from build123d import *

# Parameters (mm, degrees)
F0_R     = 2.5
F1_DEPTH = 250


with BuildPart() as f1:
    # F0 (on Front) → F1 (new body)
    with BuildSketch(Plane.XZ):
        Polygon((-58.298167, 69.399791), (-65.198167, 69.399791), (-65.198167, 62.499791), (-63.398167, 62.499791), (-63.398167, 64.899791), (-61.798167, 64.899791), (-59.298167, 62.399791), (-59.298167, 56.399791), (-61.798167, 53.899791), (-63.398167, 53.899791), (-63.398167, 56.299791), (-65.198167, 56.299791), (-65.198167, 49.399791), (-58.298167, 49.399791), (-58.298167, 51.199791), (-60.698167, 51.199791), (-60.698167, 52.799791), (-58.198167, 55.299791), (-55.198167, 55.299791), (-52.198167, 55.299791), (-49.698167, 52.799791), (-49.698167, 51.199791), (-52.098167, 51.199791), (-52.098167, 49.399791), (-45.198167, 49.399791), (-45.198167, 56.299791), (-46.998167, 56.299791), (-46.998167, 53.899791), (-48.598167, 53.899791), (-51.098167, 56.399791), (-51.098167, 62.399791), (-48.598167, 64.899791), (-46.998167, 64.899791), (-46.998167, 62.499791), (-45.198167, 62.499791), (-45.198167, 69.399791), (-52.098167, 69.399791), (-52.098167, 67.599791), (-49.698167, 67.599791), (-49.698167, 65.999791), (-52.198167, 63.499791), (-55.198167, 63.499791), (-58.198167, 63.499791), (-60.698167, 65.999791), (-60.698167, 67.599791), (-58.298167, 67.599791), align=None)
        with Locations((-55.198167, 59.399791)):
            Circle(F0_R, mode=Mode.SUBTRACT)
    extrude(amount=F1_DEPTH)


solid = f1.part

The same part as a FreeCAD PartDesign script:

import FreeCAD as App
import Part
import Sketcher

V = App.Vector
Q = App.Units.Quantity

doc = App.newDocument("Part")
body = doc.addObject("PartDesign::Body", "Body")

sketch1 = body.newObject("Sketcher::SketchObject", "Sketch")
sketch1.AttachmentSupport = (doc.getObject("XZ_Plane"), [""])
sketch1.MapMode = "FlatFace"
sketch1.addGeometry([
    Part.LineSegment(V(-58.298167, 69.399791, 0), V(-65.198167, 69.399791, 0)),
    Part.LineSegment(V(-65.198167, 69.399791, 0), V(-65.198167, 62.499791, 0)),
    Part.LineSegment(V(-65.198167, 62.499791, 0), V(-63.398167, 62.499791, 0)),
    Part.LineSegment(V(-63.398167, 62.499791, 0), V(-63.398167, 64.899791, 0)),
    Part.LineSegment(V(-63.398167, 64.899791, 0), V(-61.798167, 64.899791, 0)),
    Part.LineSegment(V(-61.798167, 64.899791, 0), V(-59.298167, 62.399791, 0)),
    Part.LineSegment(V(-59.298167, 62.399791, 0), V(-59.298167, 56.399791, 0)),
    Part.LineSegment(V(-59.298167, 56.399791, 0), V(-61.798167, 53.899791, 0)),
    Part.LineSegment(V(-61.798167, 53.899791, 0), V(-63.398167, 53.899791, 0)),
    Part.LineSegment(V(-63.398167, 53.899791, 0), V(-63.398167, 56.299791, 0)),
    Part.LineSegment(V(-63.398167, 56.299791, 0), V(-65.198167, 56.299791, 0)),
    Part.LineSegment(V(-65.198167, 56.299791, 0), V(-65.198167, 49.399791, 0)),
    Part.LineSegment(V(-65.198167, 49.399791, 0), V(-58.298167, 49.399791, 0)),
    Part.LineSegment(V(-58.298167, 49.399791, 0), V(-58.298167, 51.199791, 0)),
    Part.LineSegment(V(-58.298167, 51.199791, 0), V(-60.698167, 51.199791, 0)),
    Part.LineSegment(V(-60.698167, 51.199791, 0), V(-60.698167, 52.799791, 0)),
    Part.LineSegment(V(-60.698167, 52.799791, 0), V(-58.198167, 55.299791, 0)),
    Part.LineSegment(V(-58.198167, 55.299791, 0), V(-52.198167, 55.299791, 0)),
    Part.LineSegment(V(-52.198167, 55.299791, 0), V(-49.698167, 52.799791, 0)),
    Part.LineSegment(V(-49.698167, 52.799791, 0), V(-49.698167, 51.199791, 0)),
    Part.LineSegment(V(-49.698167, 51.199791, 0), V(-52.098167, 51.199791, 0)),
    Part.LineSegment(V(-52.098167, 51.199791, 0), V(-52.098167, 49.399791, 0)),
    Part.LineSegment(V(-52.098167, 49.399791, 0), V(-45.198167, 49.399791, 0)),
    Part.LineSegment(V(-45.198167, 49.399791, 0), V(-45.198167, 56.299791, 0)),
    Part.LineSegment(V(-45.198167, 56.299791, 0), V(-46.998167, 56.299791, 0)),
    Part.LineSegment(V(-46.998167, 56.299791, 0), V(-46.998167, 53.899791, 0)),
    Part.LineSegment(V(-46.998167, 53.899791, 0), V(-48.598167, 53.899791, 0)),
    Part.LineSegment(V(-48.598167, 53.899791, 0), V(-51.098167, 56.399791, 0)),
    Part.LineSegment(V(-51.098167, 56.399791, 0), V(-51.098167, 62.399791, 0)),
    Part.LineSegment(V(-51.098167, 62.399791, 0), V(-48.598167, 64.899791, 0)),
    Part.LineSegment(V(-48.598167, 64.899791, 0), V(-46.998167, 64.899791, 0)),
    Part.LineSegment(V(-46.998167, 64.899791, 0), V(-46.998167, 62.499791, 0)),
    Part.LineSegment(V(-46.998167, 62.499791, 0), V(-45.198167, 62.499791, 0)),
    Part.LineSegment(V(-45.198167, 62.499791, 0), V(-45.198167, 69.399791, 0)),
    Part.LineSegment(V(-45.198167, 69.399791, 0), V(-52.098167, 69.399791, 0)),
    Part.LineSegment(V(-52.098167, 69.399791, 0), V(-52.098167, 67.599791, 0)),
    Part.LineSegment(V(-52.098167, 67.599791, 0), V(-49.698167, 67.599791, 0)),
    Part.LineSegment(V(-49.698167, 67.599791, 0), V(-49.698167, 65.999791, 0)),
    Part.LineSegment(V(-49.698167, 65.999791, 0), V(-52.198167, 63.499791, 0)),
    Part.LineSegment(V(-52.198167, 63.499791, 0), V(-58.198167, 63.499791, 0)),
    Part.LineSegment(V(-58.198167, 63.499791, 0), V(-60.698167, 65.999791, 0)),
    Part.LineSegment(V(-60.698167, 65.999791, 0), V(-60.698167, 67.599791, 0)),
    Part.LineSegment(V(-60.698167, 67.599791, 0), V(-58.298167, 67.599791, 0)),
    Part.LineSegment(V(-58.298167, 67.599791, 0), V(-58.298167, 69.399791, 0)),
    Part.Circle(V(-55.198167, 59.399791, 0), V(0, 0, 1), 2.5),
], False)
sketch1.addConstraint([
    Sketcher.Constraint("Coincident", 0, 2, 1, 1),
    Sketcher.Constraint("Coincident", 1, 2, 2, 1),
    Sketcher.Constraint("Coincident", 2, 2, 3, 1),
    Sketcher.Constraint("Coincident", 3, 2, 4, 1),
    Sketcher.Constraint("Coincident", 4, 2, 5, 1),
    Sketcher.Constraint("Coincident", 5, 2, 6, 1),
    Sketcher.Constraint("Coincident", 6, 2, 7, 1),
    Sketcher.Constraint("Coincident", 7, 2, 8, 1),
    Sketcher.Constraint("Coincident", 8, 2, 9, 1),
    Sketcher.Constraint("Coincident", 9, 2, 10, 1),
    Sketcher.Constraint("Coincident", 10, 2, 11, 1),
    Sketcher.Constraint("Coincident", 11, 2, 12, 1),
    Sketcher.Constraint("Coincident", 12, 2, 13, 1),
    Sketcher.Constraint("Coincident", 13, 2, 14, 1),
    Sketcher.Constraint("Coincident", 14, 2, 15, 1),
    Sketcher.Constraint("Coincident", 15, 2, 16, 1),
    Sketcher.Constraint("Coincident", 16, 2, 17, 1),
    Sketcher.Constraint("Coincident", 17, 2, 18, 1),
    Sketcher.Constraint("Coincident", 18, 2, 19, 1),
    Sketcher.Constraint("Coincident", 19, 2, 20, 1),
    Sketcher.Constraint("Coincident", 20, 2, 21, 1),
    Sketcher.Constraint("Coincident", 21, 2, 22, 1),
    Sketcher.Constraint("Coincident", 22, 2, 23, 1),
    Sketcher.Constraint("Coincident", 23, 2, 24, 1),
    Sketcher.Constraint("Coincident", 24, 2, 25, 1),
    Sketcher.Constraint("Coincident", 25, 2, 26, 1),
    Sketcher.Constraint("Coincident", 26, 2, 27, 1),
    Sketcher.Constraint("Coincident", 27, 2, 28, 1),
    Sketcher.Constraint("Coincident", 28, 2, 29, 1),
    Sketcher.Constraint("Coincident", 29, 2, 30, 1),
    Sketcher.Constraint("Coincident", 30, 2, 31, 1),
    Sketcher.Constraint("Coincident", 31, 2, 32, 1),
    Sketcher.Constraint("Coincident", 32, 2, 33, 1),
    Sketcher.Constraint("Coincident", 33, 2, 34, 1),
    Sketcher.Constraint("Coincident", 34, 2, 35, 1),
    Sketcher.Constraint("Coincident", 35, 2, 36, 1),
    Sketcher.Constraint("Coincident", 36, 2, 37, 1),
    Sketcher.Constraint("Coincident", 37, 2, 38, 1),
    Sketcher.Constraint("Coincident", 38, 2, 39, 1),
    Sketcher.Constraint("Coincident", 39, 2, 40, 1),
    Sketcher.Constraint("Coincident", 40, 2, 41, 1),
    Sketcher.Constraint("Coincident", 41, 2, 42, 1),
    Sketcher.Constraint("Coincident", 42, 2, 43, 1),
    Sketcher.Constraint("Coincident", 43, 2, 0, 1),
    Sketcher.Constraint("Horizontal", 0),
    Sketcher.Constraint("Vertical", 1),
    Sketcher.Constraint("Horizontal", 2),
    Sketcher.Constraint("Vertical", 3),
    Sketcher.Constraint("Horizontal", 4),
    Sketcher.Constraint("Vertical", 6),
    Sketcher.Constraint("Horizontal", 8),
    Sketcher.Constraint("Vertical", 9),
    Sketcher.Constraint("Horizontal", 10),
    Sketcher.Constraint("Vertical", 11),
    Sketcher.Constraint("Horizontal", 12),
    Sketcher.Constraint("Vertical", 13),
    Sketcher.Constraint("Horizontal", 14),
    Sketcher.Constraint("Vertical", 15),
    Sketcher.Constraint("Horizontal", 17),
    Sketcher.Constraint("Vertical", 19),
    Sketcher.Constraint("Horizontal", 20),
    Sketcher.Constraint("Vertical", 21),
    Sketcher.Constraint("Horizontal", 22),
    Sketcher.Constraint("Vertical", 23),
    Sketcher.Constraint("Horizontal", 24),
    Sketcher.Constraint("Vertical", 25),
    Sketcher.Constraint("Horizontal", 26),
    Sketcher.Constraint("Vertical", 28),
    Sketcher.Constraint("Horizontal", 30),
    Sketcher.Constraint("Vertical", 31),
    Sketcher.Constraint("Horizontal", 32),
    Sketcher.Constraint("Vertical", 33),
    Sketcher.Constraint("Horizontal", 34),
    Sketcher.Constraint("Vertical", 35),
    Sketcher.Constraint("Horizontal", 36),
    Sketcher.Constraint("Vertical", 37),
    Sketcher.Constraint("Horizontal", 39),
    Sketcher.Constraint("Vertical", 41),
    Sketcher.Constraint("Horizontal", 42),
    Sketcher.Constraint("Vertical", 43),
    Sketcher.Constraint("Perpendicular", 5, 7),
    Sketcher.Constraint("Parallel", 7, 16),
    Sketcher.Constraint("Perpendicular", 16, 18),
    Sketcher.Constraint("Parallel", 18, 27),
    Sketcher.Constraint("Perpendicular", 27, 29),
    Sketcher.Constraint("Parallel", 29, 38),
    Sketcher.Constraint("Perpendicular", 38, 40),
    Sketcher.Constraint("Horizontal", 15, 2, 18, 2),
    Sketcher.Constraint("Horizontal", 14, 2, 19, 2),
    Sketcher.Constraint("Horizontal", 12, 2, 21, 2),
    Sketcher.Constraint("Horizontal", 10, 2, 23, 2),
    Sketcher.Constraint("Horizontal", 8, 2, 25, 2),
    Sketcher.Constraint("Horizontal", 6, 2, 27, 2),
    Sketcher.Constraint("Horizontal", 5, 2, 28, 2),
    Sketcher.Constraint("Horizontal", 4, 2, 29, 2),
    Sketcher.Constraint("Horizontal", 2, 2, 31, 2),
    Sketcher.Constraint("Horizontal", 0, 2, 33, 2),
    Sketcher.Constraint("Horizontal", 37, 2, 40, 2),
    Sketcher.Constraint("Horizontal", 36, 2, 41, 2),
    Sketcher.Constraint("Vertical", 4, 2, 7, 2),
    Sketcher.Constraint("Vertical", 3, 2, 8, 2),
    Sketcher.Constraint("Vertical", 1, 2, 10, 2),
    Sketcher.Constraint("Vertical", 26, 2, 29, 2),
    Sketcher.Constraint("Vertical", 25, 2, 30, 2),
    Sketcher.Constraint("Vertical", 23, 2, 32, 2),
    Sketcher.Constraint("Vertical", 21, 2, 34, 2),
    Sketcher.Constraint("Vertical", 19, 2, 36, 2),
    Sketcher.Constraint("Vertical", 17, 2, 38, 2),
    Sketcher.Constraint("Vertical", 16, 2, 39, 2),
    Sketcher.Constraint("Vertical", 13, 2, 42, 2),
    Sketcher.Constraint("Equal", 14, 20),
    Sketcher.Constraint("Equal", 12, 22),
    Sketcher.Constraint("Equal", 10, 24),
    Sketcher.Constraint("Equal", 8, 26),
    Sketcher.Constraint("Equal", 34, 1),
    Sketcher.Constraint("Equal", 42, 3),
    Sketcher.Constraint("Equal", 39, 6),
    Sketcher.Constraint("Equal", 3, 9),
    Sketcher.Constraint("Equal", 1, 11),
    Sketcher.Constraint("Equal", 32, 13),
    Sketcher.Constraint("Equal", 30, 15),
    Sketcher.Constraint("Equal", 21, 35),
    Sketcher.Constraint("Equal", 19, 37),
    Sketcher.Constraint("Equal", 7, 16),
    Sketcher.Constraint("Diameter", 44, Q("5 mm")),
    Sketcher.Constraint("DistanceX", 17, 1, 17, 2, Q("6 mm")),
    Sketcher.Constraint("DistanceX", 0, 2, 0, 1, Q("6.9 mm")),
    Sketcher.Constraint("DistanceX", 2, 1, 2, 2, Q("1.8 mm")),
    Sketcher.Constraint("DistanceX", 4, 1, 4, 2, Q("1.6 mm")),
    Sketcher.Constraint("DistanceX", 14, 2, 14, 1, Q("2.4 mm")),
    Sketcher.Constraint("DistanceX", 0, 2, 44, 3, Q("10 mm")),
    Sketcher.Constraint("DistanceY", 44, 3, 0, 2, Q("10 mm")),
    Sketcher.Constraint("DistanceY", 44, 3, 5, 2, Q("3 mm")),
    Sketcher.Constraint("DistanceY", -1, 1, 44, 3, Q("59.399791 mm")),
    Sketcher.Constraint("DistanceX", 44, 3, -1, 1, Q("55.198167 mm")),
])
pad1 = body.newObject("PartDesign::Pad", "Pad")
pad1.Profile = sketch1
pad1.Length = 250

doc.recompute()
